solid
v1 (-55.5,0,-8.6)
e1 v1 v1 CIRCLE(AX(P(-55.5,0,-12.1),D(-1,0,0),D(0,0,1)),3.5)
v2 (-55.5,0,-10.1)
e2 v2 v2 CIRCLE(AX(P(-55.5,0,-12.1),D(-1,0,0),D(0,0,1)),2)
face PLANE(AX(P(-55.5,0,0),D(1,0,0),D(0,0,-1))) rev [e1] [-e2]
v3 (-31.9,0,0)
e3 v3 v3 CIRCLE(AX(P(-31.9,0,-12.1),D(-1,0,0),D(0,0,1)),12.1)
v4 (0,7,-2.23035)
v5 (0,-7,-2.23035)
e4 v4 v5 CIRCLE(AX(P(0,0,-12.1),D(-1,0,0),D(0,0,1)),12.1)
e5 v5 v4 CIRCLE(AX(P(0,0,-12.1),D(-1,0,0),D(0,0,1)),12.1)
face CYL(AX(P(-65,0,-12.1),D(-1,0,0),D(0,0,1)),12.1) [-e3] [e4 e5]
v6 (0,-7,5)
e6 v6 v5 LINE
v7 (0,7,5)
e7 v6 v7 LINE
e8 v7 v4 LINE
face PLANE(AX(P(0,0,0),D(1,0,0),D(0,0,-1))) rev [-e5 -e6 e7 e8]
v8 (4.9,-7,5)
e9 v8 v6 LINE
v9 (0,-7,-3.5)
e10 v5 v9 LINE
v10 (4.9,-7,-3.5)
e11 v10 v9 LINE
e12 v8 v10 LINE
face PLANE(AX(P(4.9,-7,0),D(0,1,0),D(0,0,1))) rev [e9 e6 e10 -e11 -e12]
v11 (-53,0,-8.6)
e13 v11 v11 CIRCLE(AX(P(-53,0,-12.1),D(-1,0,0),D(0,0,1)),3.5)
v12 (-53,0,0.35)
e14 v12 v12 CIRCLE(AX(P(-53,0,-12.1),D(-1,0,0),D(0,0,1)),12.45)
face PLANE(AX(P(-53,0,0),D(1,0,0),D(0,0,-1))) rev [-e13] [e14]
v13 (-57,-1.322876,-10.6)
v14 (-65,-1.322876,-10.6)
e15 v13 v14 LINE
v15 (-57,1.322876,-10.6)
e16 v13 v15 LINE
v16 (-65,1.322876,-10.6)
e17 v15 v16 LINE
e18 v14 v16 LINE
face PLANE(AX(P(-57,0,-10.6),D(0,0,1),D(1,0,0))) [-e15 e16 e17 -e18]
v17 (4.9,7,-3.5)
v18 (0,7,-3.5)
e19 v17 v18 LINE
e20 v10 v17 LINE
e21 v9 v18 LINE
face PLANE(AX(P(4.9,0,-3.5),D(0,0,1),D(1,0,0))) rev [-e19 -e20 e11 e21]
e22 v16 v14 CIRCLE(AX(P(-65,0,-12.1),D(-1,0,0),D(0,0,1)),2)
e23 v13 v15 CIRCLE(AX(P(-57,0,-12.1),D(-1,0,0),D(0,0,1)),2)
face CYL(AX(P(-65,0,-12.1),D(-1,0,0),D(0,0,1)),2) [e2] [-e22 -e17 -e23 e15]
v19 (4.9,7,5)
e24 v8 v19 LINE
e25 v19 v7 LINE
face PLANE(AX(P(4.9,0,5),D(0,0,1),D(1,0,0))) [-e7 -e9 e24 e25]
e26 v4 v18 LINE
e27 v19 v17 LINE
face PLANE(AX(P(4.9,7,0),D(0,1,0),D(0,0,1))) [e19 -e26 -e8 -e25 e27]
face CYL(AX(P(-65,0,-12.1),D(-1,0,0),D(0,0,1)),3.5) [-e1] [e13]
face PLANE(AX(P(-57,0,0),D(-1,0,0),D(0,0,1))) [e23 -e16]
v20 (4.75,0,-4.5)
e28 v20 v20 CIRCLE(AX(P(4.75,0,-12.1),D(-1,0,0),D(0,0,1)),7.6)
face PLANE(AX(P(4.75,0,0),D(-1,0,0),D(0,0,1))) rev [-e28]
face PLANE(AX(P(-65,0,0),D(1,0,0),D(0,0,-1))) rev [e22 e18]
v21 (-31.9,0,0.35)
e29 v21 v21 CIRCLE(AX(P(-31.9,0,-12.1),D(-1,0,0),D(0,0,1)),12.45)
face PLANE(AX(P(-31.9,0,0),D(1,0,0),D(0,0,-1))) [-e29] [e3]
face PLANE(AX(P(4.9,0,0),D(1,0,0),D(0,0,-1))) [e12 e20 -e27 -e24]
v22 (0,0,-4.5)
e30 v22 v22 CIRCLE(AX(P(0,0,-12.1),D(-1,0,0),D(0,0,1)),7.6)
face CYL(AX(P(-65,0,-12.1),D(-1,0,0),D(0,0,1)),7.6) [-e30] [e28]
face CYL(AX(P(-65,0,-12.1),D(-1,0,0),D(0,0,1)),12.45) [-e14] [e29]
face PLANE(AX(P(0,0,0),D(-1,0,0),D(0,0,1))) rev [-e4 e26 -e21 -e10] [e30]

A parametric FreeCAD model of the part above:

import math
import FreeCAD as App
import Part
import Sketcher

doc = App.newDocument("Part")
body = doc.addObject("PartDesign::Body", "Body")

# Sketch on XZ plane
sketch1 = body.newObject("Sketcher::SketchObject", "Sketch")
sketch1.AttachmentSupport = (doc.getObject("XZ_Plane"), [""])
sketch1.MapMode = "FlatFace"
sketch1.addGeometry([
    Part.LineSegment(App.Vector(4.75, -4.5, 0), App.Vector(4.75, -12.1, 0)),  # 0
    Part.LineSegment(App.Vector(4.75, -12.1, 0), App.Vector(-65, -12.1, 0)),  # 1
    Part.LineSegment(App.Vector(-65, -12.1, 0), App.Vector(-65, -10.1, 0)),  # 2
    Part.LineSegment(App.Vector(-65, -10.1, 0), App.Vector(-55.5, -10.1, 0)),  # 3
    Part.LineSegment(App.Vector(-55.5, -10.1, 0), App.Vector(-55.5, -8.6, 0)),  # 4
    Part.LineSegment(App.Vector(-55.5, -8.6, 0), App.Vector(-53, -8.6, 0)),  # 5
    Part.LineSegment(App.Vector(-53, -8.6, 0), App.Vector(-53, 0.35, 0)),  # 6
    Part.LineSegment(App.Vector(-53, 0.35, 0), App.Vector(-31.9, 0.35, 0)),  # 7
    Part.LineSegment(App.Vector(-31.9, 0.35, 0), App.Vector(-31.9, 0, 0)),  # 8
    Part.LineSegment(App.Vector(-31.9, 0, 0), App.Vector(0, 0, 0)),  # 9
    Part.LineSegment(App.Vector(0, 0, 0), App.Vector(0, -4.5, 0)),  # 10
    Part.LineSegment(App.Vector(0, -4.5, 0), App.Vector(4.75, -4.5, 0)),  # 11
], False)
sketch1.addGeometry(Part.LineSegment(App.Vector(-65, -12.1, 0), App.Vector(4.75, -12.1, 0)), True)  # axis
sketch1.addConstraint([
    Sketcher.Constraint("Coincident", 0, 2, 1, 1),
    Sketcher.Constraint("Coincident", 1, 2, 2, 1),
    Sketcher.Constraint("Coincident", 2, 2, 3, 1),
    Sketcher.Constraint("Coincident", 3, 2, 4, 1),
    Sketcher.Constraint("Coincident", 4, 2, 5, 1),
    Sketcher.Constraint("Coincident", 5, 2, 6, 1),
    Sketcher.Constraint("Coincident", 6, 2, 7, 1),
    Sketcher.Constraint("Coincident", 7, 2, 8, 1),
    Sketcher.Constraint("Coincident", 8, 2, 9, 1),
    Sketcher.Constraint("Coincident", 9, 2, 10, 1),
    Sketcher.Constraint("Coincident", 10, 2, 11, 1),
    Sketcher.Constraint("Coincident", 11, 2, 0, 1),
    Sketcher.Constraint("Vertical", 0),
    Sketcher.Constraint("Horizontal", 1),
    Sketcher.Constraint("Vertical", 2),
    Sketcher.Constraint("Horizontal", 3),
    Sketcher.Constraint("Vertical", 4),
    Sketcher.Constraint("Horizontal", 5),
    Sketcher.Constraint("Vertical", 6),
    Sketcher.Constraint("Horizontal", 7),
    Sketcher.Constraint("Vertical", 8),
    Sketcher.Constraint("Horizontal", 9),
    Sketcher.Constraint("Vertical", 10),
    Sketcher.Constraint("Horizontal", 11),
    Sketcher.Constraint("Horizontal", 12),
    Sketcher.Constraint("Coincident", 9, 2, -1, 1),
    Sketcher.Constraint("Coincident", 12, 1, 1, 2),
    Sketcher.Constraint("Vertical", 11, 2, 12, 2),
    Sketcher.Constraint("DistanceY", 2, 1, 2, 2, 2.0),
    Sketcher.Constraint("DistanceX", 3, 1, 3, 2, 9.5),
    Sketcher.Constraint("DistanceX", 5, 1, 5, 2, 2.5),
    Sketcher.Constraint("DistanceX", 7, 1, 7, 2, 21.1),
    Sketcher.Constraint("DistanceX", 9, 1, 9, 2, 31.9),
    Sketcher.Constraint("DistanceY", 0, 2, 0, 1, 7.6),
    Sketcher.Constraint("DistanceY", 4, 1, 4, 2, 1.5),
    Sketcher.Constraint("DistanceY", 10, 2, 10, 1, 4.5),
    Sketcher.Constraint("DistanceX", 1, 2, 1, 1, 69.75),
    Sketcher.Constraint("DistanceY", 6, 1, 6, 2, 8.95),
])
revolution = body.newObject("PartDesign::Revolution", "Revolution")
revolution.Profile = sketch1
revolution.ReferenceAxis = (sketch1, ["Axis0"])
revolution.Angle = 360

# Sketch on YZ plane
sketch2 = body.newObject("Sketcher::SketchObject", "Sketch001")
sketch2.AttachmentSupport = (doc.getObject("YZ_Plane"), [""])
sketch2.MapMode = "FlatFace"
sketch2.AttachmentOffset = App.Placement(App.Vector(0, 0, -57), App.Rotation())
sketch2.addGeometry([
    Part.ArcOfCircle(Part.Circle(App.Vector(0, -12.1, 0), App.Vector(0, 0, 1), 2), math.radians(49), math.radians(131)),
    Part.LineSegment(App.Vector(1.3, -10.6, 0), App.Vector(-1.3, -10.6, 0)),
], False)
sketch2.addConstraint([
    Sketcher.Constraint("Coincident", 0, 1, 1, 1),
    Sketcher.Constraint("Coincident", 1, 2, 0, 2),
    Sketcher.Constraint("Horizontal", 1),
    Sketcher.Constraint("PointOnObject", 0, 3, -2),
    Sketcher.Constraint("Radius", 0, 2.0),
    Sketcher.Constraint("DistanceY", 0, 3, -1, 1, 12.1),
    Sketcher.Constraint("DistanceY", 0, 1, -1, 1, 10.6),
])
pocket1 = body.newObject("PartDesign::Pocket", "Pocket")
pocket1.Profile = sketch2
pocket1.Length = 8

# Sketch on YZ plane
sketch3 = body.newObject("Sketcher::SketchObject", "Sketch002")
sketch3.AttachmentSupport = (doc.getObject("YZ_Plane"), [""])
sketch3.MapMode = "FlatFace"
sketch3.addGeometry([
    Part.LineSegment(App.Vector(7, 5, 0), App.Vector(-7, 5, 0)),
    Part.LineSegment(App.Vector(-7, 5, 0), App.Vector(-7, -4, 0)),
    Part.LineSegment(App.Vector(-7, -4, 0), App.Vector(7, -4, 0)),
    Part.LineSegment(App.Vector(7, -4, 0), App.Vector(7, 5, 0)),
], False)
sketch3.addConstraint([
    Sketcher.Constraint("Coincident", 0, 2, 1, 1),
    Sketcher.Constraint("Coincident", 1, 2, 2, 1),
    Sketcher.Constraint("Coincident", 2, 2, 3, 1),
    Sketcher.Constraint("Coincident", 3, 2, 0, 1),
    Sketcher.Constraint("Horizontal", 0),
    Sketcher.Constraint("Vertical", 1),
    Sketcher.Constraint("Horizontal", 2),
    Sketcher.Constraint("Vertical", 3),
    Sketcher.Constraint("DistanceX", 0, 2, 0, 1, 14.0),
    Sketcher.Constraint("DistanceY", 1, 2, 1, 1, 8.5),
    Sketcher.Constraint("DistanceX", 0, 2, -1, 1, 7.0),
    Sketcher.Constraint("DistanceY", -1, 1, 0, 2, 5.0),
])
pad1 = body.newObject("PartDesign::Pad", "Pad")
pad1.Profile = sketch3
pad1.Length = 4.9

doc.recompute()
